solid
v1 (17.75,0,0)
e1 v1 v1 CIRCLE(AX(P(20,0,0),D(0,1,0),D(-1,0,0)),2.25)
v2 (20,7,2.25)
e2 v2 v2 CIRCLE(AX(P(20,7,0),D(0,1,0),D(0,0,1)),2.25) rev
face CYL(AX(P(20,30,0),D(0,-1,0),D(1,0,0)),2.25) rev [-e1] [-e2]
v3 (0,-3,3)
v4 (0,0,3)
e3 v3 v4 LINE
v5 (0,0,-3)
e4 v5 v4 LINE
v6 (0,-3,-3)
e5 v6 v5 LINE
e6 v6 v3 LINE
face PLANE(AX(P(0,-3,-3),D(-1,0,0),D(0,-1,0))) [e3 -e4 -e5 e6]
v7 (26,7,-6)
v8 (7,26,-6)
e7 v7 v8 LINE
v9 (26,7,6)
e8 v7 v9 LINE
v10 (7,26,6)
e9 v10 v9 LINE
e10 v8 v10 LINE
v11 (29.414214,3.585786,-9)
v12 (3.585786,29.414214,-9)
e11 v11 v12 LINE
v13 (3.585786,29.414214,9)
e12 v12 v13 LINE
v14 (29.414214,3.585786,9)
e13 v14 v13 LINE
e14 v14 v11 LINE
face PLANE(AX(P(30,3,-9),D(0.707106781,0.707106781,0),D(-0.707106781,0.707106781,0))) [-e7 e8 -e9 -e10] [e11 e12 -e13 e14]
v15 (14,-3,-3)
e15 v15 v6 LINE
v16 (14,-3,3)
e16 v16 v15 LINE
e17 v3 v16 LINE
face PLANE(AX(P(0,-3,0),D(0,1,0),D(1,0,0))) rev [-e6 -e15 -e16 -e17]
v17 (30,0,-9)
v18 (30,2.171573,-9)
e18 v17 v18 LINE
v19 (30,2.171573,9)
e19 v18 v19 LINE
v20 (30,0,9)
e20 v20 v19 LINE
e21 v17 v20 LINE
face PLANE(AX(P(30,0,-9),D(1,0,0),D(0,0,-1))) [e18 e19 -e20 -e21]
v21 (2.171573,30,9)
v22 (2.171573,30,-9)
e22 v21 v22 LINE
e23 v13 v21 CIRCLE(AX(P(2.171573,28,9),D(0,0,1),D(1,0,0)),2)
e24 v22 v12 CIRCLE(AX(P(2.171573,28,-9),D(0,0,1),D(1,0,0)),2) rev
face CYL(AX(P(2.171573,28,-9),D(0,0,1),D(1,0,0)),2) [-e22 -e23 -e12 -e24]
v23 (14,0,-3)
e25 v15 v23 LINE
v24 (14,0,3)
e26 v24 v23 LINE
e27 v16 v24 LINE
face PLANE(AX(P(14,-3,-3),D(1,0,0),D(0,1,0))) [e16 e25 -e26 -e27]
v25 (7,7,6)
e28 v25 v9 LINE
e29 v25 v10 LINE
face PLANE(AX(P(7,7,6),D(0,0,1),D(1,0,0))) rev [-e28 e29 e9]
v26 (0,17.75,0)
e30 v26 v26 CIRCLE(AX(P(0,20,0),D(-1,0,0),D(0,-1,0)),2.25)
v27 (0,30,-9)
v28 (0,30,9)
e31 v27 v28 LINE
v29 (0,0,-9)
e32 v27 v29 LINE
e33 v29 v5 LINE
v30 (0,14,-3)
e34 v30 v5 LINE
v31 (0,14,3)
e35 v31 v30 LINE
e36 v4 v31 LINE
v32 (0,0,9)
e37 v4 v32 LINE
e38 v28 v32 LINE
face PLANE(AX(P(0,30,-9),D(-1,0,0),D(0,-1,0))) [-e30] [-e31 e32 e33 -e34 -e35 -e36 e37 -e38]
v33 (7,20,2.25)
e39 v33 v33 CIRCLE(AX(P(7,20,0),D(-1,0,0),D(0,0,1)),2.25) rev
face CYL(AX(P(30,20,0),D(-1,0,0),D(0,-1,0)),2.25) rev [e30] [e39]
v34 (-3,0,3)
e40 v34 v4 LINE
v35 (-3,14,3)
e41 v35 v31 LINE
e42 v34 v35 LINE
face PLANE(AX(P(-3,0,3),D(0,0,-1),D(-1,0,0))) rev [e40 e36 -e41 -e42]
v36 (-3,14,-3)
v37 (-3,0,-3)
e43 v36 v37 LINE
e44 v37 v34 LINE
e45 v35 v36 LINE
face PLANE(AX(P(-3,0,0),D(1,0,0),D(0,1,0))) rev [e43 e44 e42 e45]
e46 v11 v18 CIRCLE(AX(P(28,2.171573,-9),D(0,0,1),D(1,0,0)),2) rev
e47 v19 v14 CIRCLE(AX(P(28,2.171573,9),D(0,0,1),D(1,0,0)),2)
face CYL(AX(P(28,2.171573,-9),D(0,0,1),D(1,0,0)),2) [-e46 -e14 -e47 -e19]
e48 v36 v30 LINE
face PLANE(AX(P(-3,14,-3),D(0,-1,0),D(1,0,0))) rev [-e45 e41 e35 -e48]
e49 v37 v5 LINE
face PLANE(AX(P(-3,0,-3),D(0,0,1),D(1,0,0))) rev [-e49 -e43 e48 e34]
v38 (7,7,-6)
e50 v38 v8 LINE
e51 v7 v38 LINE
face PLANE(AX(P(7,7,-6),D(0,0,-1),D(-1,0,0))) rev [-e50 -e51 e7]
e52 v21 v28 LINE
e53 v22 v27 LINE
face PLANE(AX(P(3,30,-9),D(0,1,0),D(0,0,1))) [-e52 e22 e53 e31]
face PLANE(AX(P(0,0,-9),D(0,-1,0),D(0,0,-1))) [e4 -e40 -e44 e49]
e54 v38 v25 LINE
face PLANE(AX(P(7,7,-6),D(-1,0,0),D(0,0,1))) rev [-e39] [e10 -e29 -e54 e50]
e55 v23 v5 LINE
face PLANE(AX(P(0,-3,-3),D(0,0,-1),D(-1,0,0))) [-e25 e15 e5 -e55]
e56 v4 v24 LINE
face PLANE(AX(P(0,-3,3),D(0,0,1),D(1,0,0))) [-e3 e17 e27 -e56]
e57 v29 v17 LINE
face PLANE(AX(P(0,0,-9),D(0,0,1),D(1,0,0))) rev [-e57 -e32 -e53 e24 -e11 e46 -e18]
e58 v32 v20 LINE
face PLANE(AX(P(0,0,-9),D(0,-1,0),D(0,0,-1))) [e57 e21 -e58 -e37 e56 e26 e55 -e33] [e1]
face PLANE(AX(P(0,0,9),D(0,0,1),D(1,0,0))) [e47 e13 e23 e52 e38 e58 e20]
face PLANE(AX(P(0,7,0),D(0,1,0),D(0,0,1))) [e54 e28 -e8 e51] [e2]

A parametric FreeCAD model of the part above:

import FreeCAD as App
import Part
import Sketcher

V = App.Vector
Q = App.Units.Quantity


def edges_at(feature, points):
    """Names of the edges that pass closest to the given points."""
    edges = feature.Shape.Edges
    near = lambda p: min(range(len(edges)), key=lambda i: edges[i].distToShape(Part.Vertex(*p))[0])
    return sorted({f"Edge{near(p) + 1}" for p in points})

doc = App.newDocument("Part")
body = doc.addObject("PartDesign::Body", "Body")

# Sketch on XY plane
sketch1 = body.newObject("Sketcher::SketchObject", "Sketch")
sketch1.AttachmentSupport = (doc.getObject("XY_Plane"), [""])
sketch1.MapMode = "FlatFace"
sketch1.addGeometry(Part.LineSegment(V(0, 0, 0), V(30, 0, 0)), False)
sketch1.addGeometry(Part.LineSegment(V(30, 0, 0), V(30, 3, 0)), False)
sketch1.addGeometry(Part.LineSegment(V(30, 3, 0), V(3, 30, 0)), False)
sketch1.addGeometry(Part.LineSegment(V(3, 30, 0), V(0, 30, 0)), False)
sketch1.addGeometry(Part.LineSegment(V(0, 30, 0), V(0, 0, 0)), False)
sketch1.addConstraint(Sketcher.Constraint("Coincident", 0, 2, 1, 1))
sketch1.addConstraint(Sketcher.Constraint("Coincident", 1, 2, 2, 1))
sketch1.addConstraint(Sketcher.Constraint("Coincident", 2, 2, 3, 1))
sketch1.addConstraint(Sketcher.Constraint("Coincident", 3, 2, 4, 1))
sketch1.addConstraint(Sketcher.Constraint("Coincident", 4, 2, 0, 1))
sketch1.addConstraint(Sketcher.Constraint("Horizontal", 0))
sketch1.addConstraint(Sketcher.Constraint("Vertical", 1))
sketch1.addConstraint(Sketcher.Constraint("Horizontal", 3))
sketch1.addConstraint(Sketcher.Constraint("Vertical", 4))
sketch1.addConstraint(Sketcher.Constraint("Coincident", 4, 2, -1, 1))
sketch1.addConstraint(Sketcher.Constraint("Equal", 3, 1))
sketch1.addConstraint(Sketcher.Constraint("Equal", 0, 4))
sketch1.addConstraint(Sketcher.Constraint("DistanceX", 0, 1, 0, 2, Q("30 mm")))
sketch1.addConstraint(Sketcher.Constraint("DistanceX", 3, 2, 3, 1, Q("3 mm")))
pad1 = body.newObject("PartDesign::Pad", "Pad")
pad1.Profile = sketch1
pad1.Type = "TwoLengths"
pad1.Length = 9
pad1.Length2 = 9

# Sketch on YZ plane
sketch2 = body.newObject("Sketcher::SketchObject", "Sketch001")
sketch2.AttachmentSupport = (doc.getObject("YZ_Plane"), [""])
sketch2.MapMode = "FlatFace"
sketch2.addGeometry(Part.Circle(V(20, 0, 0), V(0, 0, 1), 2.2), False)
sketch2.addConstraint(Sketcher.Constraint("PointOnObject", 0, 3, -1))
sketch2.addConstraint(Sketcher.Constraint("Diameter", 0, Q("4.5 mm")))
sketch2.addConstraint(Sketcher.Constraint("DistanceX", -1, 1, 0, 3, Q("20 mm")))
pocket1 = body.newObject("PartDesign::Pocket", "Pocket")
pocket1.Profile = sketch2
pocket1.Type = "ThroughAll"
pocket1.Reversed = True

# Sketch on XZ plane
sketch3 = body.newObject("Sketcher::SketchObject", "Sketch002")
sketch3.AttachmentSupport = (doc.getObject("XZ_Plane"), [""])
sketch3.MapMode = "FlatFace"
sketch3.AttachmentOffset = App.Placement(V(0, 0, -30), App.Rotation())
sketch3.addGeometry(Part.LineSegment(V(7, -6, 0), V(7, 6, 0)), False)
sketch3.addGeometry(Part.LineSegment(V(7, 6, 0), V(27, 6, 0)), False)
sketch3.addGeometry(Part.LineSegment(V(27, 6, 0), V(27, -6, 0)), False)
sketch3.addGeometry(Part.LineSegment(V(27, -6, 0), V(7, -6, 0)), False)
sketch3.addConstraint(Sketcher.Constraint("Coincident", 0, 2, 1, 1))
sketch3.addConstraint(Sketcher.Constraint("Coincident", 1, 2, 2, 1))
sketch3.addConstraint(Sketcher.Constraint("Coincident", 2, 2, 3, 1))
sketch3.addConstraint(Sketcher.Constraint("Coincident", 3, 2, 0, 1))
sketch3.addConstraint(Sketcher.Constraint("Vertical", 0))
sketch3.addConstraint(Sketcher.Constraint("Horizontal", 1))
sketch3.addConstraint(Sketcher.Constraint("Vertical", 2))
sketch3.addConstraint(Sketcher.Constraint("Horizontal", 3))
sketch3.addConstraint(Sketcher.Constraint("DistanceX", 1, 1, 1, 2, Q("20 mm")))
sketch3.addConstraint(Sketcher.Constraint("DistanceY", 0, 1, 0, 2, Q("12 mm")))
sketch3.addConstraint(Sketcher.Constraint("DistanceX", -1, 1, 0, 2, Q("7 mm")))
sketch3.addConstraint(Sketcher.Constraint("DistanceY", -1, 1, 0, 2, Q("6 mm")))
pocket2 = body.newObject("PartDesign::Pocket", "Pocket001")
pocket2.Profile = sketch3
pocket2.Length = 23
pocket2.Reversed = True

# Sketch on YZ plane
sketch4 = body.newObject("Sketcher::SketchObject", "Sketch003")
sketch4.AttachmentSupport = (doc.getObject("YZ_Plane"), [""])
sketch4.MapMode = "FlatFace"
sketch4.addGeometry(Part.LineSegment(V(14, -3, 0), V(0, -3, 0)), False)
sketch4.addGeometry(Part.LineSegment(V(0, -3, 0), V(0, 3, 0)), False)
sketch4.addGeometry(Part.LineSegment(V(0, 3, 0), V(14, 3, 0)), False)
sketch4.addGeometry(Part.LineSegment(V(14, 3, 0), V(14, -3, 0)), False)
sketch4.addConstraint(Sketcher.Constraint("Coincident", 0, 2, 1, 1))
sketch4.addConstraint(Sketcher.Constraint("Coincident", 1, 2, 2, 1))
sketch4.addConstraint(Sketcher.Constraint("Coincident", 2, 2, 3, 1))
sketch4.addConstraint(Sketcher.Constraint("Coincident", 3, 2, 0, 1))
sketch4.addConstraint(Sketcher.Constraint("Horizontal", 0))
sketch4.addConstraint(Sketcher.Constraint("Vertical", 1))
sketch4.addConstraint(Sketcher.Constraint("Horizontal", 2))
sketch4.addConstraint(Sketcher.Constraint("Vertical", 3))
sketch4.addConstraint(Sketcher.Constraint("Symmetric", 0, 2, 1, 2, -1, 1))
sketch4.addConstraint(Sketcher.Constraint("DistanceX", 0, 2, 0, 1, Q("14 mm")))
sketch4.addConstraint(Sketcher.Constraint("DistanceY", 1, 1, 1, 2, Q("6 mm")))
pad2 = body.newObject("PartDesign::Pad", "Pad001")
pad2.Profile = sketch4
pad2.Length = 3
pad2.Reversed = True
doc.recompute()

datumplane = body.newObject("PartDesign::Plane", "DatumPlane")
datumplane.Placement = App.Placement(V(0, 0, 0), App.Rotation(V(-0.707106781, -0.707106781, 0), V(0, 0, -1), V(0.707106781, -0.707106781, 0), "ZXY"))
mirrored = body.newObject("PartDesign::Mirrored", "Mirrored")
mirrored.Originals = [pocket1, pad2]
mirrored.MirrorPlane = (datumplane, [""])
body.Tip = mirrored
doc.recompute()

fillet = body.newObject("PartDesign::Fillet", "Fillet")
fillet.Base = (mirrored, edges_at(mirrored, [(3, 30, 0), (30, 3, 0)]))
fillet.Radius = 2

doc.recompute()
